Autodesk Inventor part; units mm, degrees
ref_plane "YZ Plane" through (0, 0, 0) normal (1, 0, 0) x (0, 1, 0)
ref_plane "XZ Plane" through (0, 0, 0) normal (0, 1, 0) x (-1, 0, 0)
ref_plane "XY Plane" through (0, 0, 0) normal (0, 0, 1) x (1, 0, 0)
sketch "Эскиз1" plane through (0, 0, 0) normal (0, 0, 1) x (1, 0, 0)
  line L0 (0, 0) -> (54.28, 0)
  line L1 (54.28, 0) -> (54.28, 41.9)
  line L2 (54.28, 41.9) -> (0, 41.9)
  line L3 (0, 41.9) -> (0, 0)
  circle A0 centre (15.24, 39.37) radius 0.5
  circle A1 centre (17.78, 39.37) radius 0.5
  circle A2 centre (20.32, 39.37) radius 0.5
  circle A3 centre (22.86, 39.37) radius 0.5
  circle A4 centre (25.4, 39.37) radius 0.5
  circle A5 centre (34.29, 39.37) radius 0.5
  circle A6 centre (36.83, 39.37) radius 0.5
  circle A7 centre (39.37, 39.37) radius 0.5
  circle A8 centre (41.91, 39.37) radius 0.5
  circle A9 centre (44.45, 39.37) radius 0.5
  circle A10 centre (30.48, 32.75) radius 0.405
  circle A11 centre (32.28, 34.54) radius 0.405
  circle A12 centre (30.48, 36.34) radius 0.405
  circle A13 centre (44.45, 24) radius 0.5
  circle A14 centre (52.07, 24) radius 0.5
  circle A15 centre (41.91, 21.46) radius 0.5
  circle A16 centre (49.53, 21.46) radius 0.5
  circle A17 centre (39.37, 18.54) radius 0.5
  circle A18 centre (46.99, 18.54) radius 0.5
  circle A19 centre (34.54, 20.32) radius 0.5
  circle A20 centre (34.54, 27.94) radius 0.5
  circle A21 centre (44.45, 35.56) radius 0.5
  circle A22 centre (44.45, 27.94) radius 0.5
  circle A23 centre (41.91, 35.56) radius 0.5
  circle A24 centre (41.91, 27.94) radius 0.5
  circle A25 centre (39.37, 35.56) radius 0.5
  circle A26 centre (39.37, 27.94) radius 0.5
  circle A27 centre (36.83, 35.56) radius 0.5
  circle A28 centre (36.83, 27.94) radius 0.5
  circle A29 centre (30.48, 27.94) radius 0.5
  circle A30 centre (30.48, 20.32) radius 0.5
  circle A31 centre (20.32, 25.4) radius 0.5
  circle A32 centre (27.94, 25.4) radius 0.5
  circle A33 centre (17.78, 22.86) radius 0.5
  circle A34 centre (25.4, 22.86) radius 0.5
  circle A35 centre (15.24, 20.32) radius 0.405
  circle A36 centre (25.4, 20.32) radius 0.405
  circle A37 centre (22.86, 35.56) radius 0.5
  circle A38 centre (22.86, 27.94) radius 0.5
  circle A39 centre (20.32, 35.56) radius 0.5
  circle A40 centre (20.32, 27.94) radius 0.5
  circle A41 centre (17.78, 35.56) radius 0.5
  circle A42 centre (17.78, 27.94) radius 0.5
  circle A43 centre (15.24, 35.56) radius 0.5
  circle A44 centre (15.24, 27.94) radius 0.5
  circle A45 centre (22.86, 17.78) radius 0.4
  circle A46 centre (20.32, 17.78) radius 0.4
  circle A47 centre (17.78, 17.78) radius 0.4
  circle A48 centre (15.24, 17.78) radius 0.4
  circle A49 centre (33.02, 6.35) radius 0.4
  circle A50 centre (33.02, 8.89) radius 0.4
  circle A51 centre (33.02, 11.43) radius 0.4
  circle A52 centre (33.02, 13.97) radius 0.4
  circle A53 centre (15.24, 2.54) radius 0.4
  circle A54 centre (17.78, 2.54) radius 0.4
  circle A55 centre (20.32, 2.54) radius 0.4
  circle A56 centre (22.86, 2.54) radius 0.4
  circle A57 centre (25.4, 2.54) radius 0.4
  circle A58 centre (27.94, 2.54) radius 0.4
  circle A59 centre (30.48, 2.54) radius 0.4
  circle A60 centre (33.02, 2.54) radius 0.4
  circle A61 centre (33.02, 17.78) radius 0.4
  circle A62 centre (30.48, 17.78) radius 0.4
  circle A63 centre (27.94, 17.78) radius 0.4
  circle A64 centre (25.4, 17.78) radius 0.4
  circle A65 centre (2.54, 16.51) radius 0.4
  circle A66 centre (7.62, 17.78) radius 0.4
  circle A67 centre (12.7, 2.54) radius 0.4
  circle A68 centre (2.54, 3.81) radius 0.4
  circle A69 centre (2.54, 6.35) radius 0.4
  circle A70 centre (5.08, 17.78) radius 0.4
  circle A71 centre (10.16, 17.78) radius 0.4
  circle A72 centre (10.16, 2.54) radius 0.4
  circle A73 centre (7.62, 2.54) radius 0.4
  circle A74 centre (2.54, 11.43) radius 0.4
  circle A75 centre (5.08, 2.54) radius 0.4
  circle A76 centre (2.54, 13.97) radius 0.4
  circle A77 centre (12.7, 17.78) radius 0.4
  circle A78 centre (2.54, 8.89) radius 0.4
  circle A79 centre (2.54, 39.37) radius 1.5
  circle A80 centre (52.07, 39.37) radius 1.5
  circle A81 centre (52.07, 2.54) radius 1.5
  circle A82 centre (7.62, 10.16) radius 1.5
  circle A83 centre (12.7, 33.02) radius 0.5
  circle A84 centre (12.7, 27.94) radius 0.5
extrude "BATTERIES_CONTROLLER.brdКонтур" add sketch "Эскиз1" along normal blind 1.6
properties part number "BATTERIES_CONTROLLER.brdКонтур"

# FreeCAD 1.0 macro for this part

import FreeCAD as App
import Part
import Sketcher

V = App.Vector
Q = App.Units.Quantity


def add_polygon(sketch, points):
    """Adds a closed chain of lines whose ends are joined by coincident constraints."""
    first, n = sketch.GeometryCount, len(points)
    for a, b in zip(points, points[1:] + points[:1]):
        sketch.addGeometry(Part.LineSegment(App.Vector(*a, 0), App.Vector(*b, 0)), False)
    for i in range(n):
        sketch.addConstraint(Sketcher.Constraint("Coincident", first + i, 2, first + (i + 1) % n, 1))

doc = App.newDocument("Part")
body = doc.addObject("PartDesign::Body", "Body")

# Sketch on XY plane
sketch1 = body.newObject("Sketcher::SketchObject", "Sketch")
sketch1.AttachmentSupport = (doc.getObject("XY_Plane"), [""])
sketch1.MapMode = "FlatFace"
add_polygon(sketch1, [(0, 41.9), (0, 0), (54.28, 0), (54.28, 41.9)])  # lines 0-3
sketch1.addGeometry(Part.Circle(V(5.08, 2.54, 0), V(0, 0, 1), 0.4), False)  # 4
sketch1.addGeometry(Part.Circle(V(2.54, 3.81, 0), V(0, 0, 1), 0.4), False)  # 5
sketch1.addGeometry(Part.Circle(V(7.62, 2.54, 0), V(0, 0, 1), 0.4), False)  # 6
sketch1.addGeometry(Part.Circle(V(10.16, 2.54, 0), V(0, 0, 1), 0.4), False)  # 7
sketch1.addGeometry(Part.Circle(V(12.7, 2.54, 0), V(0, 0, 1), 0.4), False)  # 8
sketch1.addGeometry(Part.Circle(V(2.54, 6.35, 0), V(0, 0, 1), 0.4), False)  # 9
sketch1.addGeometry(Part.Circle(V(2.54, 8.89, 0), V(0, 0, 1), 0.4), False)  # 10
sketch1.addGeometry(Part.Circle(V(7.62, 10.16, 0), V(0, 0, 1), 1.5), False)  # 11
sketch1.addGeometry(Part.Circle(V(15.24, 2.54, 0), V(0, 0, 1), 0.4), False)  # 12
sketch1.addGeometry(Part.Circle(V(17.78, 2.54, 0), V(0, 0, 1), 0.4), False)  # 13
sketch1.addGeometry(Part.Circle(V(20.32, 2.54, 0), V(0, 0, 1), 0.4), False)  # 14
sketch1.addGeometry(Part.Circle(V(22.86, 2.54, 0), V(0, 0, 1), 0.4), False)  # 15
sketch1.addGeometry(Part.Circle(V(25.4, 2.54, 0), V(0, 0, 1), 0.4), False)  # 16
sketch1.addGeometry(Part.Circle(V(2.54, 11.43, 0), V(0, 0, 1), 0.4), False)  # 17
sketch1.addGeometry(Part.Circle(V(2.54, 13.97, 0), V(0, 0, 1), 0.4), False)  # 18
sketch1.addGeometry(Part.Circle(V(2.54, 16.51, 0), V(0, 0, 1), 0.4), False)  # 19
sketch1.addGeometry(Part.Circle(V(5.08, 17.78, 0), V(0, 0, 1), 0.4), False)  # 20
sketch1.addGeometry(Part.Circle(V(7.62, 17.78, 0), V(0, 0, 1), 0.4), False)  # 21
sketch1.addGeometry(Part.Circle(V(10.16, 17.78, 0), V(0, 0, 1), 0.4), False)  # 22
sketch1.addGeometry(Part.Circle(V(12.7, 17.78, 0), V(0, 0, 1), 0.4), False)  # 23
sketch1.addGeometry(Part.Circle(V(15.24, 17.78, 0), V(0, 0, 1), 0.4), False)  # 24
sketch1.addGeometry(Part.Circle(V(17.78, 17.78, 0), V(0, 0, 1), 0.4), False)  # 25
sketch1.addGeometry(Part.Circle(V(20.32, 17.78, 0), V(0, 0, 1), 0.4), False)  # 26
sketch1.addGeometry(Part.Circle(V(15.24, 20.32, 0), V(0, 0, 1), 0.41), False)  # 27
sketch1.addGeometry(Part.Circle(V(22.86, 17.78, 0), V(0, 0, 1), 0.4), False)  # 28
sketch1.addGeometry(Part.Circle(V(25.4, 17.78, 0), V(0, 0, 1), 0.4), False)  # 29
sketch1.addGeometry(Part.Circle(V(25.4, 20.32, 0), V(0, 0, 1), 0.41), False)  # 30
sketch1.addGeometry(Part.Circle(V(27.94, 2.54, 0), V(0, 0, 1), 0.4), False)  # 31
sketch1.addGeometry(Part.Circle(V(30.48, 2.54, 0), V(0, 0, 1), 0.4), False)  # 32
sketch1.addGeometry(Part.Circle(V(33.02, 2.54, 0), V(0, 0, 1), 0.4), False)  # 33
sketch1.addGeometry(Part.Circle(V(33.02, 6.35, 0), V(0, 0, 1), 0.4), False)  # 34
sketch1.addGeometry(Part.Circle(V(33.02, 8.89, 0), V(0, 0, 1), 0.4), False)  # 35
sketch1.addGeometry(Part.Circle(V(52.07, 2.54, 0), V(0, 0, 1), 1.5), False)  # 36
sketch1.addGeometry(Part.Circle(V(33.02, 11.43, 0), V(0, 0, 1), 0.4), False)  # 37
sketch1.addGeometry(Part.Circle(V(33.02, 13.97, 0), V(0, 0, 1), 0.4), False)  # 38
sketch1.addGeometry(Part.Circle(V(27.94, 17.78, 0), V(0, 0, 1), 0.4), False)  # 39
sketch1.addGeometry(Part.Circle(V(30.48, 17.78, 0), V(0, 0, 1), 0.4), False)  # 40
sketch1.addGeometry(Part.Circle(V(33.02, 17.78, 0), V(0, 0, 1), 0.4), False)  # 41
sketch1.addGeometry(Part.Circle(V(30.48, 20.32, 0), V(0, 0, 1), 0.5), False)  # 42
sketch1.addGeometry(Part.Circle(V(34.54, 20.32, 0), V(0, 0, 1), 0.5), False)  # 43
sketch1.addGeometry(Part.Circle(V(39.37, 18.54, 0), V(0, 0, 1), 0.5), False)  # 44
sketch1.addGeometry(Part.Circle(V(46.99, 18.54, 0), V(0, 0, 1), 0.5), False)  # 45
sketch1.addGeometry(Part.Circle(V(12.7, 27.94, 0), V(0, 0, 1), 0.5), False)  # 46
sketch1.addGeometry(Part.Circle(V(17.78, 22.86, 0), V(0, 0, 1), 0.5), False)  # 47
sketch1.addGeometry(Part.Circle(V(20.32, 25.4, 0), V(0, 0, 1), 0.5), False)  # 48
sketch1.addGeometry(Part.Circle(V(25.4, 22.86, 0), V(0, 0, 1), 0.5), False)  # 49
sketch1.addGeometry(Part.Circle(V(15.24, 27.94, 0), V(0, 0, 1), 0.5), False)  # 50
sketch1.addGeometry(Part.Circle(V(17.78, 27.94, 0), V(0, 0, 1), 0.5), False)  # 51
sketch1.addGeometry(Part.Circle(V(20.32, 27.94, 0), V(0, 0, 1), 0.5), False)  # 52
sketch1.addGeometry(Part.Circle(V(22.86, 27.94, 0), V(0, 0, 1), 0.5), False)  # 53
sketch1.addGeometry(Part.Circle(V(12.7, 33.02, 0), V(0, 0, 1), 0.5), False)  # 54
sketch1.addGeometry(Part.Circle(V(2.54, 39.37, 0), V(0, 0, 1), 1.5), False)  # 55
sketch1.addGeometry(Part.Circle(V(15.24, 35.56, 0), V(0, 0, 1), 0.5), False)  # 56
sketch1.addGeometry(Part.Circle(V(17.78, 35.56, 0), V(0, 0, 1), 0.5), False)  # 57
sketch1.addGeometry(Part.Circle(V(20.32, 35.56, 0), V(0, 0, 1), 0.5), False)  # 58
sketch1.addGeometry(Part.Circle(V(22.86, 35.56, 0), V(0, 0, 1), 0.5), False)  # 59
sketch1.addGeometry(Part.Circle(V(15.24, 39.37, 0), V(0, 0, 1), 0.5), False)  # 60
sketch1.addGeometry(Part.Circle(V(17.78, 39.37, 0), V(0, 0, 1), 0.5), False)  # 61
sketch1.addGeometry(Part.Circle(V(20.32, 39.37, 0), V(0, 0, 1), 0.5), False)  # 62
sketch1.addGeometry(Part.Circle(V(22.86, 39.37, 0), V(0, 0, 1), 0.5), False)  # 63
sketch1.addGeometry(Part.Circle(V(25.4, 39.37, 0), V(0, 0, 1), 0.5), False)  # 64
sketch1.addGeometry(Part.Circle(V(27.94, 25.4, 0), V(0, 0, 1), 0.5), False)  # 65
sketch1.addGeometry(Part.Circle(V(30.48, 27.94, 0), V(0, 0, 1), 0.5), False)  # 66
sketch1.addGeometry(Part.Circle(V(34.54, 27.94, 0), V(0, 0, 1), 0.5), False)  # 67
sketch1.addGeometry(Part.Circle(V(36.83, 27.94, 0), V(0, 0, 1), 0.5), False)  # 68
sketch1.addGeometry(Part.Circle(V(39.37, 27.94, 0), V(0, 0, 1), 0.5), False)  # 69
sketch1.addGeometry(Part.Circle(V(41.91, 21.46, 0), V(0, 0, 1), 0.5), False)  # 70
sketch1.addGeometry(Part.Circle(V(44.45, 24, 0), V(0, 0, 1), 0.5), False)  # 71
sketch1.addGeometry(Part.Circle(V(49.53, 21.46, 0), V(0, 0, 1), 0.5), False)  # 72
sketch1.addGeometry(Part.Circle(V(52.07, 24, 0), V(0, 0, 1), 0.5), False)  # 73
sketch1.addGeometry(Part.Circle(V(41.91, 27.94, 0), V(0, 0, 1), 0.5), False)  # 74
sketch1.addGeometry(Part.Circle(V(44.45, 27.94, 0), V(0, 0, 1), 0.5), False)  # 75
sketch1.addGeometry(Part.Circle(V(30.48, 32.75, 0), V(0, 0, 1), 0.41), False)  # 76
sketch1.addGeometry(Part.Circle(V(30.48, 36.34, 0), V(0, 0, 1), 0.41), False)  # 77
sketch1.addGeometry(Part.Circle(V(32.28, 34.54, 0), V(0, 0, 1), 0.41), False)  # 78
sketch1.addGeometry(Part.Circle(V(36.83, 35.56, 0), V(0, 0, 1), 0.5), False)  # 79
sketch1.addGeometry(Part.Circle(V(39.37, 35.56, 0), V(0, 0, 1), 0.5), False)  # 80
sketch1.addGeometry(Part.Circle(V(34.29, 39.37, 0), V(0, 0, 1), 0.5), False)  # 81
sketch1.addGeometry(Part.Circle(V(36.83, 39.37, 0), V(0, 0, 1), 0.5), False)  # 82
sketch1.addGeometry(Part.Circle(V(39.37, 39.37, 0), V(0, 0, 1), 0.5), False)  # 83
sketch1.addGeometry(Part.Circle(V(41.91, 35.56, 0), V(0, 0, 1), 0.5), False)  # 84
sketch1.addGeometry(Part.Circle(V(44.45, 35.56, 0), V(0, 0, 1), 0.5), False)  # 85
sketch1.addGeometry(Part.Circle(V(41.91, 39.37, 0), V(0, 0, 1), 0.5), False)  # 86
sketch1.addGeometry(Part.Circle(V(44.45, 39.37, 0), V(0, 0, 1), 0.5), False)  # 87
sketch1.addGeometry(Part.Circle(V(52.07, 39.37, 0), V(0, 0, 1), 1.5), False)  # 88
sketch1.addConstraint([
    Sketcher.Constraint("Vertical", 0),
    Sketcher.Constraint("Horizontal", 1),
    Sketcher.Constraint("Vertical", 2),
    Sketcher.Constraint("Horizontal", 3),
    Sketcher.Constraint("Coincident", 0, 2, -1, 1),
    Sketcher.Constraint("Equal", 4, 5),
    Sketcher.Constraint("Equal", 5, 6),
    Sketcher.Constraint("Equal", 6, 7),
    Sketcher.Constraint("Equal", 7, 8),
    Sketcher.Constraint("Equal", 8, 9),
    Sketcher.Constraint("Equal", 9, 10),
    Sketcher.Constraint("Equal", 10, 12),
    Sketcher.Constraint("Equal", 12, 13),
    Sketcher.Constraint("Equal", 13, 14),
    Sketcher.Constraint("Equal", 14, 15),
    Sketcher.Constraint("Equal", 15, 16),
    Sketcher.Constraint("Equal", 16, 17),
    Sketcher.Constraint("Equal", 17, 18),
    Sketcher.Constraint("Equal", 18, 19),
    Sketcher.Constraint("Equal", 19, 20),
    Sketcher.Constraint("Equal", 20, 21),
    Sketcher.Constraint("Equal", 21, 22),
    Sketcher.Constraint("Equal", 22, 23),
    Sketcher.Constraint("Equal", 23, 24),
    Sketcher.Constraint("Equal", 24, 25),
    Sketcher.Constraint("Equal", 25, 26),
    Sketcher.Constraint("Equal", 26, 28),
    Sketcher.Constraint("Equal", 28, 29),
    Sketcher.Constraint("Equal", 27, 30),
    Sketcher.Constraint("Equal", 29, 31),
    Sketcher.Constraint("Equal", 31, 32),
    Sketcher.Constraint("Equal", 32, 33),
    Sketcher.Constraint("Equal", 33, 34),
    Sketcher.Constraint("Equal", 34, 35),
    Sketcher.Constraint("Equal", 11, 36),
    Sketcher.Constraint("Equal", 35, 37),
    Sketcher.Constraint("Equal", 37, 38),
    Sketcher.Constraint("Equal", 38, 39),
    Sketcher.Constraint("Equal", 39, 40),
    Sketcher.Constraint("Equal", 40, 41),
    Sketcher.Constraint("Equal", 42, 43),
    Sketcher.Constraint("Equal", 43, 44),
    Sketcher.Constraint("Equal", 44, 45),
    Sketcher.Constraint("Equal", 45, 46),
    Sketcher.Constraint("Equal", 46, 47),
    Sketcher.Constraint("Equal", 47, 48),
    Sketcher.Constraint("Equal", 48, 49),
    Sketcher.Constraint("Equal", 49, 50),
    Sketcher.Constraint("Equal", 50, 51),
    Sketcher.Constraint("Equal", 51, 52),
    Sketcher.Constraint("Equal", 52, 53),
    Sketcher.Constraint("Equal", 53, 54),
    Sketcher.Constraint("Equal", 36, 55),
    Sketcher.Constraint("Equal", 54, 56),
    Sketcher.Constraint("Equal", 56, 57),
    Sketcher.Constraint("Equal", 57, 58),
    Sketcher.Constraint("Equal", 58, 59),
    Sketcher.Constraint("Equal", 59, 60),
    Sketcher.Constraint("Equal", 60, 61),
    Sketcher.Constraint("Equal", 61, 62),
    Sketcher.Constraint("Equal", 62, 63),
    Sketcher.Constraint("Equal", 63, 64),
    Sketcher.Constraint("Equal", 64, 65),
    Sketcher.Constraint("Equal", 65, 66),
    Sketcher.Constraint("Equal", 66, 67),
    Sketcher.Constraint("Equal", 67, 68),
    Sketcher.Constraint("Equal", 68, 69),
    Sketcher.Constraint("Equal", 69, 70),
    Sketcher.Constraint("Equal", 70, 71),
    Sketcher.Constraint("Equal", 71, 72),
    Sketcher.Constraint("Equal", 72, 73),
    Sketcher.Constraint("Equal", 73, 74),
    Sketcher.Constraint("Equal", 74, 75),
    Sketcher.Constraint("Equal", 30, 76),
    Sketcher.Constraint("Equal", 76, 77),
    Sketcher.Constraint("Equal", 77, 78),
    Sketcher.Constraint("Equal", 75, 79),
    Sketcher.Constraint("Equal", 79, 80),
    Sketcher.Constraint("Equal", 80, 81),
    Sketcher.Constraint("Equal", 81, 82),
    Sketcher.Constraint("Equal", 82, 83),
    Sketcher.Constraint("Equal", 83, 84),
    Sketcher.Constraint("Equal", 84, 85),
    Sketcher.Constraint("Equal", 85, 86),
    Sketcher.Constraint("Equal", 86, 87),
    Sketcher.Constraint("Equal", 55, 88),
    Sketcher.Constraint("Horizontal", 4, 3, 6, 3),
    Sketcher.Constraint("Horizontal", 6, 3, 7, 3),
    Sketcher.Constraint("Horizontal", 7, 3, 8, 3),
    Sketcher.Constraint("Horizontal", 8, 3, 12, 3),
    Sketcher.Constraint("Horizontal", 12, 3, 13, 3),
    Sketcher.Constraint("Horizontal", 13, 3, 14, 3),
    Sketcher.Constraint("Horizontal", 14, 3, 15, 3),
    Sketcher.Constraint("Horizontal", 15, 3, 16, 3),
    Sketcher.Constraint("Horizontal", 20, 3, 21, 3),
    Sketcher.Constraint("Horizontal", 21, 3, 22, 3),
    Sketcher.Constraint("Horizontal", 22, 3, 23, 3),
    Sketcher.Constraint("Horizontal", 23, 3, 24, 3),
    Sketcher.Constraint("Horizontal", 24, 3, 25, 3),
    Sketcher.Constraint("Horizontal", 25, 3, 26, 3),
    Sketcher.Constraint("Horizontal", 26, 3, 28, 3),
    Sketcher.Constraint("Horizontal", 28, 3, 29, 3),
    Sketcher.Constraint("Horizontal", 27, 3, 30, 3),
    Sketcher.Constraint("Horizontal", 16, 3, 31, 3),
    Sketcher.Constraint("Horizontal", 31, 3, 32, 3),
    Sketcher.Constraint("Horizontal", 32, 3, 33, 3),
    Sketcher.Constraint("Horizontal", 9, 3, 34, 3),
    Sketcher.Constraint("Horizontal", 10, 3, 35, 3),
    Sketcher.Constraint("Horizontal", 33, 3, 36, 3),
    Sketcher.Constraint("Horizontal", 17, 3, 37, 3),
    Sketcher.Constraint("Horizontal", 18, 3, 38, 3),
    Sketcher.Constraint("Horizontal", 29, 3, 39, 3),
    Sketcher.Constraint("Horizontal", 39, 3, 40, 3),
    Sketcher.Constraint("Horizontal", 40, 3, 41, 3),
    Sketcher.Constraint("Horizontal", 30, 3, 42, 3),
    Sketcher.Constraint("Horizontal", 42, 3, 43, 3),
    Sketcher.Constraint("Horizontal", 44, 3, 45, 3),
    Sketcher.Constraint("Horizontal", 47, 3, 49, 3),
    Sketcher.Constraint("Horizontal", 46, 3, 50, 3),
    Sketcher.Constraint("Horizontal", 50, 3, 51, 3),
    Sketcher.Constraint("Horizontal", 51, 3, 52, 3),
    Sketcher.Constraint("Horizontal", 52, 3, 53, 3),
    Sketcher.Constraint("Horizontal", 56, 3, 57, 3),
    Sketcher.Constraint("Horizontal", 57, 3, 58, 3),
    Sketcher.Constraint("Horizontal", 58, 3, 59, 3),
    Sketcher.Constraint("Horizontal", 55, 3, 60, 3),
    Sketcher.Constraint("Horizontal", 60, 3, 61, 3),
    Sketcher.Constraint("Horizontal", 61, 3, 62, 3),
    Sketcher.Constraint("Horizontal", 62, 3, 63, 3),
    Sketcher.Constraint("Horizontal", 63, 3, 64, 3),
    Sketcher.Constraint("Horizontal", 48, 3, 65, 3),
    Sketcher.Constraint("Horizontal", 53, 3, 66, 3),
    Sketcher.Constraint("Horizontal", 66, 3, 67, 3),
    Sketcher.Constraint("Horizontal", 67, 3, 68, 3),
    Sketcher.Constraint("Horizontal", 68, 3, 69, 3),
    Sketcher.Constraint("Horizontal", 70, 3, 72, 3),
    Sketcher.Constraint("Horizontal", 71, 3, 73, 3),
    Sketcher.Constraint("Horizontal", 69, 3, 74, 3),
    Sketcher.Constraint("Horizontal", 74, 3, 75, 3),
    Sketcher.Constraint("Horizontal", 59, 3, 79, 3),
    Sketcher.Constraint("Horizontal", 79, 3, 80, 3),
    Sketcher.Constraint("Horizontal", 64, 3, 81, 3),
    Sketcher.Constraint("Horizontal", 81, 3, 82, 3),
    Sketcher.Constraint("Horizontal", 82, 3, 83, 3),
    Sketcher.Constraint("Horizontal", 80, 3, 84, 3),
    Sketcher.Constraint("Horizontal", 84, 3, 85, 3),
    Sketcher.Constraint("Horizontal", 83, 3, 86, 3),
    Sketcher.Constraint("Horizontal", 86, 3, 87, 3),
    Sketcher.Constraint("Horizontal", 87, 3, 88, 3),
    Sketcher.Constraint("Vertical", 5, 3, 9, 3),
    Sketcher.Constraint("Vertical", 9, 3, 10, 3),
    Sketcher.Constraint("Vertical", 6, 3, 11, 3),
    Sketcher.Constraint("Vertical", 10, 3, 17, 3),
    Sketcher.Constraint("Vertical", 17, 3, 18, 3),
    Sketcher.Constraint("Vertical", 18, 3, 19, 3),
    Sketcher.Constraint("Vertical", 4, 3, 20, 3),
    Sketcher.Constraint("Vertical", 11, 3, 21, 3),
    Sketcher.Constraint("Vertical", 7, 3, 22, 3),
    Sketcher.Constraint("Vertical", 8, 3, 23, 3),
    Sketcher.Constraint("Vertical", 12, 3, 24, 3),
    Sketcher.Constraint("Vertical", 13, 3, 25, 3),
    Sketcher.Constraint("Vertical", 14, 3, 26, 3),
    Sketcher.Constraint("Vertical", 24, 3, 27, 3),
    Sketcher.Constraint("Vertical", 15, 3, 28, 3),
    Sketcher.Constraint("Vertical", 16, 3, 29, 3),
    Sketcher.Constraint("Vertical", 29, 3, 30, 3),
    Sketcher.Constraint("Vertical", 33, 3, 34, 3),
    Sketcher.Constraint("Vertical", 34, 3, 35, 3),
    Sketcher.Constraint("Vertical", 35, 3, 37, 3),
    Sketcher.Constraint("Vertical", 37, 3, 38, 3),
    Sketcher.Constraint("Vertical", 31, 3, 39, 3),
    Sketcher.Constraint("Vertical", 32, 3, 40, 3),
    Sketcher.Constraint("Vertical", 38, 3, 41, 3),
    Sketcher.Constraint("Vertical", 40, 3, 42, 3),
    Sketcher.Constraint("Vertical", 23, 3, 46, 3),
    Sketcher.Constraint("Vertical", 25, 3, 47, 3),
    Sketcher.Constraint("Vertical", 26, 3, 48, 3),
    Sketcher.Constraint("Vertical", 30, 3, 49, 3),
    Sketcher.Constraint("Vertical", 27, 3, 50, 3),
    Sketcher.Constraint("Vertical", 47, 3, 51, 3),
    Sketcher.Constraint("Vertical", 48, 3, 52, 3),
    Sketcher.Constraint("Vertical", 28, 3, 53, 3),
    Sketcher.Constraint("Vertical", 46, 3, 54, 3),
    Sketcher.Constraint("Vertical", 19, 3, 55, 3),
    Sketcher.Constraint("Vertical", 50, 3, 56, 3),
    Sketcher.Constraint("Vertical", 51, 3, 57, 3),
    Sketcher.Constraint("Vertical", 52, 3, 58, 3),
    Sketcher.Constraint("Vertical", 53, 3, 59, 3),
    Sketcher.Constraint("Vertical", 56, 3, 60, 3),
    Sketcher.Constraint("Vertical", 57, 3, 61, 3),
    Sketcher.Constraint("Vertical", 58, 3, 62, 3),
    Sketcher.Constraint("Vertical", 59, 3, 63, 3),
    Sketcher.Constraint("Vertical", 49, 3, 64, 3),
    Sketcher.Constraint("Vertical", 39, 3, 65, 3),
    Sketcher.Constraint("Vertical", 42, 3, 66, 3),
    Sketcher.Constraint("Vertical", 43, 3, 67, 3),
    Sketcher.Constraint("Vertical", 44, 3, 69, 3),
    Sketcher.Constraint("Vertical", 36, 3, 73, 3),
    Sketcher.Constraint("Vertical", 70, 3, 74, 3),
    Sketcher.Constraint("Vertical", 71, 3, 75, 3),
    Sketcher.Constraint("Vertical", 66, 3, 76, 3),
    Sketcher.Constraint("Vertical", 76, 3, 77, 3),
    Sketcher.Constraint("Vertical", 68, 3, 79, 3),
    Sketcher.Constraint("Vertical", 69, 3, 80, 3),
    Sketcher.Constraint("Vertical", 79, 3, 82, 3),
    Sketcher.Constraint("Vertical", 80, 3, 83, 3),
    Sketcher.Constraint("Vertical", 74, 3, 84, 3),
    Sketcher.Constraint("Vertical", 75, 3, 85, 3),
    Sketcher.Constraint("Vertical", 84, 3, 86, 3),
    Sketcher.Constraint("Vertical", 85, 3, 87, 3),
    Sketcher.Constraint("Vertical", 73, 3, 88, 3),
    Sketcher.Constraint("DistanceX", -1, 1, 16, 3, Q("1 in")),
    Sketcher.Constraint("DistanceY", -1, 1, 48, 3, Q("1 in")),
    Sketcher.Constraint("Diameter", 4, Q("0.0315 in")),
    Sketcher.Constraint("Diameter", 11, Q("0.1181 in")),
    Sketcher.Constraint("Diameter", 27, Q("0.0319 in")),
    Sketcher.Constraint("DistanceX", -1, 1, 4, 3, Q("0.2 in")),
    Sketcher.Constraint("DistanceY", -1, 1, 4, 3, Q("0.1 in")),
    Sketcher.Constraint("DistanceX", -1, 1, 5, 3, Q("0.1 in")),
    Sketcher.Constraint("DistanceX", -1, 1, 6, 3, Q("0.3 in")),
    Sketcher.Constraint("DistanceX", -1, 1, 7, 3, Q("0.4 in")),
    Sketcher.Constraint("DistanceX", -1, 1, 8, 3, Q("0.5 in")),
    Sketcher.Constraint("DistanceY", -1, 1, 11, 3, Q("0.4 in")),
    Sketcher.Constraint("DistanceX", -1, 1, 12, 3, Q("0.6 in")),
    Sketcher.Constraint("DistanceX", -1, 1, 13, 3, Q("0.7 in")),
    Sketcher.Constraint("DistanceX", -1, 1, 14, 3, Q("0.8 in")),
    Sketcher.Constraint("DistanceX", -1, 1, 15, 3, Q("0.9 in")),
    Sketcher.Constraint("DistanceY", -1, 1, 20, 3, Q("0.7 in")),
    Sketcher.Constraint("DistanceY", -1, 1, 27, 3, Q("0.8 in")),
    Sketcher.Constraint("DistanceX", -1, 1, 31, 3, Q("1.1 in")),
    Sketcher.Constraint("DistanceX", -1, 1, 32, 3, Q("1.2 in")),
    Sketcher.Constraint("DistanceX", -1, 1, 33, 3, Q("1.3 in")),
    Sketcher.Constraint("DistanceY", -1, 1, 46, 3, Q("1.1 in")),
    Sketcher.Constraint("DistanceY", -1, 1, 47, 3, Q("0.9 in")),
    Sketcher.Constraint("DistanceY", -1, 1, 54, 3, Q("1.3 in")),
    Sketcher.Constraint("DistanceY", -1, 1, 56, 3, Q("1.4 in")),
    Sketcher.Constraint("Diameter", 42, 1.0),
    Sketcher.Constraint("DistanceX", 1, 1, 1, 2, Q("2.137 in")),
    Sketcher.Constraint("DistanceY", -1, 1, 5, 3, Q("0.15 in")),
    Sketcher.Constraint("DistanceY", -1, 1, 9, 3, Q("0.25 in")),
    Sketcher.Constraint("DistanceY", -1, 1, 10, 3, Q("0.35 in")),
    Sketcher.Constraint("DistanceY", -1, 1, 17, 3, Q("0.45 in")),
    Sketcher.Constraint("DistanceY", -1, 1, 18, 3, Q("0.55 in")),
    Sketcher.Constraint("DistanceY", -1, 1, 19, 3, Q("0.65 in")),
    Sketcher.Constraint("DistanceX", -1, 1, 36, 3, Q("2.05 in")),
    Sketcher.Constraint("DistanceX", -1, 1, 44, 3, Q("1.55 in")),
    Sketcher.Constraint("DistanceX", -1, 1, 45, 3, Q("1.85 in")),
    Sketcher.Constraint("DistanceY", -1, 1, 55, 3, Q("1.55 in")),
    Sketcher.Constraint("DistanceX", -1, 1, 68, 3, Q("1.45 in")),
    Sketcher.Constraint("DistanceX", -1, 1, 70, 3, Q("1.65 in")),
    Sketcher.Constraint("DistanceX", -1, 1, 71, 3, Q("1.75 in")),
    Sketcher.Constraint("DistanceX", -1, 1, 72, 3, Q("1.95 in")),
    Sketcher.Constraint("DistanceX", -1, 1, 81, 3, Q("1.35 in")),
    Sketcher.Constraint("DistanceY", 0, 2, 0, 1, Q("1.6496 in")),
    Sketcher.Constraint("DistanceY", -1, 1, 77, 3, Q("1.4307 in")),
    Sketcher.Constraint("DistanceX", -1, 1, 43, 3, 34.54),
    Sketcher.Constraint("DistanceY", -1, 1, 44, 3, 18.54),
    Sketcher.Constraint("DistanceY", -1, 1, 70, 3, 21.46),
    Sketcher.Constraint("DistanceY", -1, 1, 71, 3, 24.0),
    Sketcher.Constraint("DistanceY", -1, 1, 76, 3, 32.75),
    Sketcher.Constraint("DistanceX", -1, 1, 78, 3, 32.28),
    Sketcher.Constraint("DistanceY", -1, 1, 78, 3, 34.54),
])
pad1 = body.newObject("PartDesign::Pad", "Pad")
pad1.Profile = sketch1
pad1.Length = Q("0.0629921 in")

doc.recompute()
